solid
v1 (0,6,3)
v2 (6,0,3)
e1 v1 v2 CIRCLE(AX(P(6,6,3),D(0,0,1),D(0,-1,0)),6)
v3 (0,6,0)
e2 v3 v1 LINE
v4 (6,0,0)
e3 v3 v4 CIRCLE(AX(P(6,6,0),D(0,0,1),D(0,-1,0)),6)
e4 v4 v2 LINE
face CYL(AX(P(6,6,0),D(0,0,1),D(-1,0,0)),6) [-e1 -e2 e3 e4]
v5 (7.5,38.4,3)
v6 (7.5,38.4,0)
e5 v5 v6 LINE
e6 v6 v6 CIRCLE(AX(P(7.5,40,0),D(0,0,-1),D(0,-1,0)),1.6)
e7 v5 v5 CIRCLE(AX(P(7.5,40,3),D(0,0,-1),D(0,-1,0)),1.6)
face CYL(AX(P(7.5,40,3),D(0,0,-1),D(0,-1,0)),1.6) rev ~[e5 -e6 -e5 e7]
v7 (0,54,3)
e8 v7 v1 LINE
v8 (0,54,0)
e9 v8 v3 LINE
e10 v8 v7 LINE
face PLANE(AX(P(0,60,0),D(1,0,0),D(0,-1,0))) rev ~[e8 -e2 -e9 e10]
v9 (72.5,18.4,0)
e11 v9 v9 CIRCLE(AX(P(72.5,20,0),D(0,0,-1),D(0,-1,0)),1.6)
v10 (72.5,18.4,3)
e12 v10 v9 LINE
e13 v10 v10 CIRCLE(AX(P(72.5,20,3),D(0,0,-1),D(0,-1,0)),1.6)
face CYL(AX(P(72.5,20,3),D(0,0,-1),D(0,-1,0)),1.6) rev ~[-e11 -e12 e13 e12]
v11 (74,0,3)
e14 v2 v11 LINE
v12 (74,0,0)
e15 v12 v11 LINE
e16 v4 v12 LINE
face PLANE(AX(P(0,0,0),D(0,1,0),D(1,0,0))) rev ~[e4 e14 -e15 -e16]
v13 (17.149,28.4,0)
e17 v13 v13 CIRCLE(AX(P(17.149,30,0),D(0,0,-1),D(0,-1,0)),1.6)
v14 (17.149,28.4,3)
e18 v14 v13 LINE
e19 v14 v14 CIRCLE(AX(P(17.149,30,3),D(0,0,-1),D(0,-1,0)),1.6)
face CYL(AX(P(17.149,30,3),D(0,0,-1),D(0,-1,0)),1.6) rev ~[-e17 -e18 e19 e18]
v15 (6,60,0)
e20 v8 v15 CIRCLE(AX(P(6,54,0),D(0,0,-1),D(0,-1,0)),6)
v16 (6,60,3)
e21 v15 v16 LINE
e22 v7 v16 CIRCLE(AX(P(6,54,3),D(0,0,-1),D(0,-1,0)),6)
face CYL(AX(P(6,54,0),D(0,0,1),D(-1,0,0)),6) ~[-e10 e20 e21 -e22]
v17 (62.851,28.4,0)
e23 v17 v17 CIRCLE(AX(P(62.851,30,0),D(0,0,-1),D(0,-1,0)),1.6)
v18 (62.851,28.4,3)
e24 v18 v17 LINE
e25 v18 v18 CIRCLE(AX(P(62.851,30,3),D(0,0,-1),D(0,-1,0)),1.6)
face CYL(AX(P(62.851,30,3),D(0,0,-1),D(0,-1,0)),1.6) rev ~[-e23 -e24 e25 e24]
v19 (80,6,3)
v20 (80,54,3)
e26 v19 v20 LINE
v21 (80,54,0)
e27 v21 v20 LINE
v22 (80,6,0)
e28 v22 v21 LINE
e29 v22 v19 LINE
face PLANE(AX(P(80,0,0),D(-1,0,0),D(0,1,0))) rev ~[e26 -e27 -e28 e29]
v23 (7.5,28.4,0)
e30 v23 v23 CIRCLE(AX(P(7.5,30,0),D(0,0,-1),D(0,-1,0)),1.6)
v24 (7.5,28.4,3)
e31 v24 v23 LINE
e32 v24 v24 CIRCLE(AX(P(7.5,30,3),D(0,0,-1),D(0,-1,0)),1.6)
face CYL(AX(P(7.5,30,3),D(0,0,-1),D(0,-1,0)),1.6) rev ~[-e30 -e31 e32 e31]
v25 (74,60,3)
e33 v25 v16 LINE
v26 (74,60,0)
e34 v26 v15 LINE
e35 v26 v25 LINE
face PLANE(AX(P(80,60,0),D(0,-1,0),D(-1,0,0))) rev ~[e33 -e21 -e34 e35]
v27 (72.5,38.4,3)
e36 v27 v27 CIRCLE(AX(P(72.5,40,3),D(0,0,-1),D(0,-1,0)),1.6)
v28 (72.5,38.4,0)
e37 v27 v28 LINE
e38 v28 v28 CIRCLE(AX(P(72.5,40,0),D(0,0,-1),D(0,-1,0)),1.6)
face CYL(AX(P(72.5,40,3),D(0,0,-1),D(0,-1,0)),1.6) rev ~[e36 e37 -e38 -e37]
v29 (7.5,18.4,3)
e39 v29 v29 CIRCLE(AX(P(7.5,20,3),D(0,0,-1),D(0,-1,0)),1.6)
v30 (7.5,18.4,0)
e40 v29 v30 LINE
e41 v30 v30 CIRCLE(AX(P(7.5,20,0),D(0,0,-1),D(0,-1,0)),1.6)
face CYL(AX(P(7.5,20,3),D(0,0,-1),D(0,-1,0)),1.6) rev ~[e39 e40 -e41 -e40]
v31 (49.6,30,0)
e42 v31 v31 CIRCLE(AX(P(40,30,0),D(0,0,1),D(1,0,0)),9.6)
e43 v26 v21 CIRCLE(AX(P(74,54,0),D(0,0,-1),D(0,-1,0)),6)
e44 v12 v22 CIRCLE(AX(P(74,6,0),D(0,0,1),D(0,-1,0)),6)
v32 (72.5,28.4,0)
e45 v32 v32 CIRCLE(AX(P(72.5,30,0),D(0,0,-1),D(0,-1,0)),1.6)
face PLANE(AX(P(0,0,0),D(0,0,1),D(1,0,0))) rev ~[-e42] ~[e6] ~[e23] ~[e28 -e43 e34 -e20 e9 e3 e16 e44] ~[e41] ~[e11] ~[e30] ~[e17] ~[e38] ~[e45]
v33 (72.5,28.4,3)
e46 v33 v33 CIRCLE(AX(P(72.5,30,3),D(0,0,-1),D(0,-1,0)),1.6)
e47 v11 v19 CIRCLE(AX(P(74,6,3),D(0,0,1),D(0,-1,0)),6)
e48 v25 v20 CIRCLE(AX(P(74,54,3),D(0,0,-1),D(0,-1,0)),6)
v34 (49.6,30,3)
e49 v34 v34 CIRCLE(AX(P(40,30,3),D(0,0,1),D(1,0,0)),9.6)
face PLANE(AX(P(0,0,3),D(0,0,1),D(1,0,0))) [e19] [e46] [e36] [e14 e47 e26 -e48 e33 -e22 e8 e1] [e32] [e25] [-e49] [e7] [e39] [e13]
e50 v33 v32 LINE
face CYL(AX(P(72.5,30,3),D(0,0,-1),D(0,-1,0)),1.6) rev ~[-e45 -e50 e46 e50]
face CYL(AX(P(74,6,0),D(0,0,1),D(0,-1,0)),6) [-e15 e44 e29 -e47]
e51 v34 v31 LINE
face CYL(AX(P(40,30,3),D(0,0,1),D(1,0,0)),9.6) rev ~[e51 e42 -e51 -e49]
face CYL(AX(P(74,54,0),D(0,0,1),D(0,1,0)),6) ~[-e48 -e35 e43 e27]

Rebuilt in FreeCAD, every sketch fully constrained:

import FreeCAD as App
import Part
import Sketcher
from FreeCAD import Vector


def edges_at(feature, points):
    """Names of the edges that pass closest to the given points."""
    edges = feature.Shape.Edges
    near = lambda p: min(range(len(edges)), key=lambda i: edges[i].distToShape(Part.Vertex(*p))[0])
    return sorted({f"Edge{near(p) + 1}" for p in points})


def add_polygon(sketch, points):
    """Adds a closed chain of lines whose ends are joined by coincident constraints."""
    first, n = sketch.GeometryCount, len(points)
    for a, b in zip(points, points[1:] + points[:1]):
        sketch.addGeometry(Part.LineSegment(App.Vector(*a, 0), App.Vector(*b, 0)), False)
    for i in range(n):
        sketch.addConstraint(Sketcher.Constraint("Coincident", first + i, 2, first + (i + 1) % n, 1))

doc = App.newDocument("Part")
params = doc.addObject("Spreadsheet::Sheet", "Params")
for row, (alias, value) in enumerate([
    ("sketch1_width", "80 mm"),
    ("sketch1_height", "60 mm"),
    ("pad1_length", "3 mm"),
    ("sketch2_diameter", "3.2 mm"),
    ("hole_diameter", "3.2 mm"),
    ("sketch3_diameter", "15 mm"),
    ("pocket1_length", "3 mm"),
    ("sketch4_diameter", "24.1 mm"),
    ("sketch4_diameter2", "15 mm"),
    ("pocket2_length", "3 mm"),
    ("sketch5_diameter", "3.2 mm"),
    ("hole2_diameter", "3.2 mm"),
    ("fillet_radius", "6 mm"),
    ("sketch6_diameter", "19.2 mm"),
    ("sketch6_diameter2", "24.1 mm"),
    ("pad2_length", "3 mm"),
], start=1):
    params.set(f"A{row}", alias)
    params.set(f"B{row}", "=" + value)
    params.setAlias(f"B{row}", alias)

body = doc.addObject("PartDesign::Body", "Body")

sketch1 = body.newObject("Sketcher::SketchObject", "Sketch")
sketch1.AttachmentSupport = (doc.getObject("XY_Plane"), [""])
sketch1.MapMode = "FlatFace"
add_polygon(sketch1, [(0, 60), (0, 0), (80, 0), (80, 60)])
sketch1.addConstraint(Sketcher.Constraint("Vertical", 0))
sketch1.addConstraint(Sketcher.Constraint("Horizontal", 1))
sketch1.addConstraint(Sketcher.Constraint("Vertical", 2))
sketch1.addConstraint(Sketcher.Constraint("Horizontal", 3))
sketch1.addConstraint(Sketcher.Constraint("Coincident", 0, 2, -1, 1))
sketch1.addConstraint(Sketcher.Constraint("DistanceX", 1, 1, 1, 2, 80.0))
sketch1.addConstraint(Sketcher.Constraint("DistanceY", 0, 2, 0, 1, 60.0))
sketch1.setExpression("Constraints[9]", "Params.sketch1_width")
sketch1.setExpression("Constraints[10]", "Params.sketch1_height")
pad1 = body.newObject("PartDesign::Pad", "Pad")
pad1.Profile = sketch1
pad1.setExpression("Length", "Params.pad1_length")

sketch2 = body.newObject("Sketcher::SketchObject", "Sketch001")
sketch2.AttachmentSupport = (doc.getObject("XY_Plane"), [""])
sketch2.MapMode = "FlatFace"
sketch2.AttachmentOffset = App.Placement(Vector(0, 0, 3), App.Rotation())
sketch2.addGeometry(Part.Circle(Vector(7.5, 40, 0), Vector(0, 0, 1), 1.6), False)
sketch2.addGeometry(Part.Circle(Vector(7.5, 30, 0), Vector(0, 0, 1), 1.6), False)
sketch2.addGeometry(Part.Circle(Vector(7.5, 20, 0), Vector(0, 0, 1), 1.6), False)
sketch2.addGeometry(Part.Circle(Vector(72.5, 40, 0), Vector(0, 0, 1), 1.6), False)
sketch2.addGeometry(Part.Circle(Vector(72.5, 30, 0), Vector(0, 0, 1), 1.6), False)
sketch2.addGeometry(Part.Circle(Vector(72.5, 20, 0), Vector(0, 0, 1), 1.6), False)
sketch2.addConstraint(Sketcher.Constraint("Equal", 0, 1))
sketch2.addConstraint(Sketcher.Constraint("Equal", 1, 2))
sketch2.addConstraint(Sketcher.Constraint("Equal", 2, 3))
sketch2.addConstraint(Sketcher.Constraint("Equal", 3, 4))
sketch2.addConstraint(Sketcher.Constraint("Equal", 4, 5))
sketch2.addConstraint(Sketcher.Constraint("Horizontal", 0, 3, 3, 3))
sketch2.addConstraint(Sketcher.Constraint("Horizontal", 1, 3, 4, 3))
sketch2.addConstraint(Sketcher.Constraint("Horizontal", 2, 3, 5, 3))
sketch2.addConstraint(Sketcher.Constraint("Vertical", 0, 3, 1, 3))
sketch2.addConstraint(Sketcher.Constraint("Vertical", 1, 3, 2, 3))
sketch2.addConstraint(Sketcher.Constraint("Vertical", 3, 3, 4, 3))
sketch2.addConstraint(Sketcher.Constraint("Vertical", 4, 3, 5, 3))
sketch2.addConstraint(Sketcher.Constraint("Diameter", 0, 3.2))
sketch2.addConstraint(Sketcher.Constraint("DistanceY", -1, 1, 0, 3, 40.0))
sketch2.addConstraint(Sketcher.Constraint("DistanceY", -1, 1, 1, 3, 30.0))
sketch2.addConstraint(Sketcher.Constraint("DistanceY", -1, 1, 2, 3, 20.0))
sketch2.addConstraint(Sketcher.Constraint("DistanceX", 0, 3, 3, 3, 65.0))
sketch2.addConstraint(Sketcher.Constraint("DistanceX", -1, 1, 0, 3, 7.5))
sketch2.setExpression("Constraints[12]", "Params.sketch2_diameter")
doc.recompute()
hole = body.newObject("PartDesign::Hole", "Hole")
hole.Profile = sketch2
hole.ThreadType = "None"
hole.setExpression("Diameter", "Params.hole_diameter")
hole.DepthType = "ThroughAll"

sketch3 = body.newObject("Sketcher::SketchObject", "Sketch002")
sketch3.AttachmentSupport = (doc.getObject("XY_Plane"), [""])
sketch3.MapMode = "FlatFace"
sketch3.AttachmentOffset = App.Placement(Vector(0, 0, 3), App.Rotation())
sketch3.addGeometry(Part.Circle(Vector(40, 30, 0), Vector(0, 0, 1), 8), False)
sketch3.addConstraint(Sketcher.Constraint("Diameter", 0, 15.0))
sketch3.addConstraint(Sketcher.Constraint("DistanceX", -1, 1, 0, 3, 40.0))
sketch3.addConstraint(Sketcher.Constraint("DistanceY", -1, 1, 0, 3, 30.0))
sketch3.setExpression("Constraints[0]", "Params.sketch3_diameter")
pocket1 = body.newObject("PartDesign::Pocket", "Pocket")
pocket1.Profile = sketch3
pocket1.setExpression("Length", "Params.pocket1_length")

sketch4 = body.newObject("Sketcher::SketchObject", "Sketch003")
sketch4.AttachmentSupport = (doc.getObject("XY_Plane"), [""])
sketch4.MapMode = "FlatFace"
sketch4.AttachmentOffset = App.Placement(Vector(0, 0, 3), App.Rotation())
sketch4.addGeometry(Part.Circle(Vector(40, 30, 0), Vector(0, 0, 1), 12), False)
sketch4.addGeometry(Part.Circle(Vector(40, 30, 0), Vector(0, 0, 1), 8), False)
sketch4.addConstraint(Sketcher.Constraint("Coincident", 1, 3, 0, 3))
sketch4.addConstraint(Sketcher.Constraint("Diameter", 0, 24.1))
sketch4.addConstraint(Sketcher.Constraint("Diameter", 1, 15.0))
sketch4.addConstraint(Sketcher.Constraint("DistanceX", -1, 1, 0, 3, 40.0))
sketch4.addConstraint(Sketcher.Constraint("DistanceY", -1, 1, 0, 3, 30.0))
sketch4.setExpression("Constraints[1]", "Params.sketch4_diameter")
sketch4.setExpression("Constraints[2]", "Params.sketch4_diameter2")
pocket2 = body.newObject("PartDesign::Pocket", "Pocket001")
pocket2.Profile = sketch4
pocket2.setExpression("Length", "Params.pocket2_length")

sketch5 = body.newObject("Sketcher::SketchObject", "Sketch004")
sketch5.AttachmentSupport = (doc.getObject("XY_Plane"), [""])
sketch5.MapMode = "FlatFace"
sketch5.AttachmentOffset = App.Placement(Vector(0, 0, 3), App.Rotation())
sketch5.addGeometry(Part.Circle(Vector(17.1, 30, 0), Vector(0, 0, 1), 1.6), False)
sketch5.addGeometry(Part.Circle(Vector(62.9, 30, 0), Vector(0, 0, 1), 1.6), False)
sketch5.addConstraint(Sketcher.Constraint("Equal", 0, 1))
sketch5.addConstraint(Sketcher.Constraint("Horizontal", 0, 3, 1, 3))
sketch5.addConstraint(Sketcher.Constraint("Diameter", 0, 3.2))
sketch5.addConstraint(Sketcher.Constraint("DistanceY", -1, 1, 0, 3, 30.0))
sketch5.addConstraint(Sketcher.Constraint("DistanceX", -1, 1, 0, 3, 17.149))
sketch5.addConstraint(Sketcher.Constraint("DistanceX", -1, 1, 1, 3, 62.851))
sketch5.setExpression("Constraints[2]", "Params.sketch5_diameter")
doc.recompute()
hole2 = body.newObject("PartDesign::Hole", "Hole001")
hole2.Profile = sketch5
hole2.ThreadType = "None"
hole2.setExpression("Diameter", "Params.hole2_diameter")
hole2.DepthType = "ThroughAll"
doc.recompute()

fillet = body.newObject("PartDesign::Fillet", "Fillet")
fillet.Base = (hole2, edges_at(hole2, [
    (0, 60, 1.5),
    (80, 60, 1.5),
    (80, 0, 1.5),
    (0, 0, 1.5),
]))
fillet.setExpression("Radius", "Params.fillet_radius")

sketch6 = body.newObject("Sketcher::SketchObject", "Sketch005")
sketch6.AttachmentSupport = (doc.getObject("XY_Plane"), [""])
sketch6.MapMode = "FlatFace"
sketch6.AttachmentOffset = App.Placement(Vector(0, 0, 3), App.Rotation())
sketch6.addGeometry(Part.Circle(Vector(40, 30, 0), Vector(0, 0, 1), 12), False)
sketch6.addGeometry(Part.Circle(Vector(40, 30, 0), Vector(0, 0, 1), 10), False)
sketch6.addConstraint(Sketcher.Constraint("Coincident", 1, 3, 0, 3))
sketch6.addConstraint(Sketcher.Constraint("Diameter", 1, 19.2))
sketch6.addConstraint(Sketcher.Constraint("Diameter", 0, 24.1))
sketch6.addConstraint(Sketcher.Constraint("DistanceX", -1, 1, 0, 3, 40.0))
sketch6.addConstraint(Sketcher.Constraint("DistanceY", -1, 1, 0, 3, 30.0))
sketch6.setExpression("Constraints[1]", "Params.sketch6_diameter")
sketch6.setExpression("Constraints[2]", "Params.sketch6_diameter2")
pad2 = body.newObject("PartDesign::Pad", "Pad001")
pad2.Profile = sketch6
pad2.setExpression("Length", "Params.pad2_length")
pad2.Reversed = True

doc.recompute()
